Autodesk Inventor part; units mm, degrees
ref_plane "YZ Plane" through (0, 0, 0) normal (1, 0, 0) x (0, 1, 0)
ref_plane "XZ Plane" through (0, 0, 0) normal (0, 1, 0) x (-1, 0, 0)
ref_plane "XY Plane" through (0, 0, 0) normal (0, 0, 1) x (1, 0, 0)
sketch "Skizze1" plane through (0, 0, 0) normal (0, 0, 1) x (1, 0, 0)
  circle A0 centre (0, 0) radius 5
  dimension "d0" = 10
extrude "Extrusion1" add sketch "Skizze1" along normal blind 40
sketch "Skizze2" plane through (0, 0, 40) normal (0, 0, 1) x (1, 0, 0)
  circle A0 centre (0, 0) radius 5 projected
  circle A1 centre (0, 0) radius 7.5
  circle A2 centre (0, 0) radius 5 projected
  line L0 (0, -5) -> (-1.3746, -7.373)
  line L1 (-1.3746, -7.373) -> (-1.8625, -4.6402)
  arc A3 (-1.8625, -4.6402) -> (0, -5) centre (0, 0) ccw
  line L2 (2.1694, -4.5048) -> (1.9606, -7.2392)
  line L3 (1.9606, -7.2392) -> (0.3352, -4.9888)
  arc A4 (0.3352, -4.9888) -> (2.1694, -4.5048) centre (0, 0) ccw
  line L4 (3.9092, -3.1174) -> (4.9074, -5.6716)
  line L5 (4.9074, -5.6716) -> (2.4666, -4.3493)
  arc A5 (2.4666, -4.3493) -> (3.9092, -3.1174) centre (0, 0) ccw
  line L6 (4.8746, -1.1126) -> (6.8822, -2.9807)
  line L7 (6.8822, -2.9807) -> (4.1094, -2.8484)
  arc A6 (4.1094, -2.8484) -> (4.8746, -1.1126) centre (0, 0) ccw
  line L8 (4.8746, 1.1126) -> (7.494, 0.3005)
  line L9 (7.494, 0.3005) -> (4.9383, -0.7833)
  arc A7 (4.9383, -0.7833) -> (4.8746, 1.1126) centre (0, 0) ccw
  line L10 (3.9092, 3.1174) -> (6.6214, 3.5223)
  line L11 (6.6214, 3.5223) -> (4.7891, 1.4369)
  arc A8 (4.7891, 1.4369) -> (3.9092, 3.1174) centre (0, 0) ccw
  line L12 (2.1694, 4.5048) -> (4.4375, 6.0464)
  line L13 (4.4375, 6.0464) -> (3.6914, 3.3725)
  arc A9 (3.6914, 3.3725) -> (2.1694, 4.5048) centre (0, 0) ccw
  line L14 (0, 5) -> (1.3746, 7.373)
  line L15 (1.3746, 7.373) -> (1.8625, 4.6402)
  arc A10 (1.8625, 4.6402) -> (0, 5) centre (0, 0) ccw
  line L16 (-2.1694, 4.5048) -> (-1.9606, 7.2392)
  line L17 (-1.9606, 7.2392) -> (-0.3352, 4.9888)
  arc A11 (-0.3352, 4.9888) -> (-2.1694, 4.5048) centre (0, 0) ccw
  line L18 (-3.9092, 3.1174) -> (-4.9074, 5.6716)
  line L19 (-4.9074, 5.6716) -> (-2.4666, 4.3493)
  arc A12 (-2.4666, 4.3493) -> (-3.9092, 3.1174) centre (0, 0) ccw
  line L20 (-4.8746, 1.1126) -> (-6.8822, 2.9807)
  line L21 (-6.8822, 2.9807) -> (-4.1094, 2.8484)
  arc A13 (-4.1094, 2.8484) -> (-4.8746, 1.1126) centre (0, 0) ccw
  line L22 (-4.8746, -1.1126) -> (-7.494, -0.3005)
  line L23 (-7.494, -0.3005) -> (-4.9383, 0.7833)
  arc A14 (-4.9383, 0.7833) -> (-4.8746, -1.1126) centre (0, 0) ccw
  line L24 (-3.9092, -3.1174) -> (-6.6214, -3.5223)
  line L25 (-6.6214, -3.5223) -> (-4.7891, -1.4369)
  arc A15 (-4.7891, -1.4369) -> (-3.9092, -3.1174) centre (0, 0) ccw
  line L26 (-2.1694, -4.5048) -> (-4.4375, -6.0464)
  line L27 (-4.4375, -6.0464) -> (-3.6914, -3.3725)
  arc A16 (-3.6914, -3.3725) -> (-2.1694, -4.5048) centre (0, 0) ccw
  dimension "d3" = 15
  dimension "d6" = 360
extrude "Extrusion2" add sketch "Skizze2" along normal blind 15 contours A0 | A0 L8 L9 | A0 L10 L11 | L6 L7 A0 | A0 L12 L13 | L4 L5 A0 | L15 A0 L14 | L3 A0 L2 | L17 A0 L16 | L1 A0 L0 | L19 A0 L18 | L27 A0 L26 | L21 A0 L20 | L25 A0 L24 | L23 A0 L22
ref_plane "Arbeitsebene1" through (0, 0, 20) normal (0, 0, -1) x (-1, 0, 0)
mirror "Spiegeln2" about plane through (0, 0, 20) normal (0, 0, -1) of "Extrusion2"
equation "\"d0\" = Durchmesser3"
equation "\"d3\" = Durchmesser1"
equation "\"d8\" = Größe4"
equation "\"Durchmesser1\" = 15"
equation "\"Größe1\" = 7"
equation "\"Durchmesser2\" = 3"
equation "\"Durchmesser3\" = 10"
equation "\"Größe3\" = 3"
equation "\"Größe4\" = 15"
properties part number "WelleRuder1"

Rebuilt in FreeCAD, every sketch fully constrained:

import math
import FreeCAD as App
import Part
import Sketcher
from FreeCAD import Vector
Q = App.Units.Quantity

doc = App.newDocument("Part")
body = doc.addObject("PartDesign::Body", "Body")

sketch1 = body.newObject("Sketcher::SketchObject", "Sketch")
sketch1.AttachmentSupport = (doc.getObject("XY_Plane"), [""])
sketch1.MapMode = "FlatFace"
sketch1.addGeometry(Part.Circle(Vector(0, 0, 0), Vector(0, 0, 1), 5), False)
sketch1.addConstraint([
    Sketcher.Constraint("Coincident", 0, 3, -1, 1),
    Sketcher.Constraint("Diameter", 0, Q("10 mm")),
])
pad1 = body.newObject("PartDesign::Pad", "Pad")
pad1.Profile = sketch1
pad1.Length = 40

sketch2 = body.newObject("Sketcher::SketchObject", "Sketch001")
sketch2.AttachmentSupport = (doc.getObject("XY_Plane"), [""])
sketch2.MapMode = "FlatFace"
sketch2.AttachmentOffset = App.Placement(Vector(0, 0, 40), App.Rotation())
sketch2.addGeometry([
    Part.ArcOfCircle(Part.Circle(Vector(0, 0, 0), Vector(0, 0, 1), 5), math.radians(-12.86), math.radians(-9.01)),
    Part.LineSegment(Vector(4.94, -0.78, 0), Vector(7.49, 0.3, 0)),
    Part.LineSegment(Vector(7.49, 0.3, 0), Vector(4.87, 1.11, 0)),
    Part.ArcOfCircle(Part.Circle(Vector(0, 0, 0), Vector(0, 0, 1), 5), math.radians(12.86), math.radians(16.7)),
    Part.LineSegment(Vector(4.79, 1.44, 0), Vector(6.62, 3.52, 0)),
    Part.LineSegment(Vector(6.62, 3.52, 0), Vector(3.91, 3.12, 0)),
    Part.ArcOfCircle(Part.Circle(Vector(0, 0, 0), Vector(0, 0, 1), 5), math.radians(38.57), math.radians(42.42)),
    Part.LineSegment(Vector(3.69, 3.37, 0), Vector(4.44, 6.05, 0)),
    Part.LineSegment(Vector(4.44, 6.05, 0), Vector(2.17, 4.5, 0)),
    Part.ArcOfCircle(Part.Circle(Vector(0, 0, 0), Vector(0, 0, 1), 5), math.radians(64.29), math.radians(68.13)),
    Part.LineSegment(Vector(1.86, 4.64, 0), Vector(1.37, 7.37, 0)),
    Part.LineSegment(Vector(1.37, 7.37, 0), Vector(0, 5, 0)),
    Part.ArcOfCircle(Part.Circle(Vector(0, 0, 0), Vector(0, 0, 1), 5), math.radians(90), math.radians(93.84)),
    Part.LineSegment(Vector(-0.34, 4.99, 0), Vector(-1.96, 7.24, 0)),
    Part.LineSegment(Vector(-1.96, 7.24, 0), Vector(-2.17, 4.5, 0)),
    Part.ArcOfCircle(Part.Circle(Vector(0, 0, 0), Vector(0, 0, 1), 5), math.radians(115.71), math.radians(119.56)),
    Part.LineSegment(Vector(-2.47, 4.35, 0), Vector(-4.91, 5.67, 0)),
    Part.LineSegment(Vector(-4.91, 5.67, 0), Vector(-3.91, 3.12, 0)),
    Part.ArcOfCircle(Part.Circle(Vector(0, 0, 0), Vector(0, 0, 1), 5), math.radians(141.43), math.radians(145.27)),
    Part.LineSegment(Vector(-4.11, 2.85, 0), Vector(-6.88, 2.98, 0)),
    Part.LineSegment(Vector(-6.88, 2.98, 0), Vector(-4.87, 1.11, 0)),
    Part.ArcOfCircle(Part.Circle(Vector(0, 0, 0), Vector(0, 0, 1), 5), math.radians(167.14), math.radians(170.99)),
    Part.LineSegment(Vector(-4.94, 0.78, 0), Vector(-7.49, -0.3, 0)),
    Part.LineSegment(Vector(-7.49, -0.3, 0), Vector(-4.87, -1.11, 0)),
    Part.ArcOfCircle(Part.Circle(Vector(0, 0, 0), Vector(0, 0, 1), 5), math.radians(-167.14), math.radians(-163.3)),
    Part.LineSegment(Vector(-4.79, -1.44, 0), Vector(-6.62, -3.52, 0)),
    Part.LineSegment(Vector(-6.62, -3.52, 0), Vector(-3.91, -3.12, 0)),
    Part.ArcOfCircle(Part.Circle(Vector(0, 0, 0), Vector(0, 0, 1), 5), math.radians(-141.43), math.radians(-137.58)),
    Part.LineSegment(Vector(-3.69, -3.37, 0), Vector(-4.44, -6.05, 0)),
    Part.LineSegment(Vector(-4.44, -6.05, 0), Vector(-2.17, -4.5, 0)),
    Part.ArcOfCircle(Part.Circle(Vector(0, 0, 0), Vector(0, 0, 1), 5), math.radians(-115.71), math.radians(-111.87)),
    Part.LineSegment(Vector(-1.86, -4.64, 0), Vector(-1.37, -7.37, 0)),
    Part.LineSegment(Vector(-1.37, -7.37, 0), Vector(0, -5, 0)),
    Part.ArcOfCircle(Part.Circle(Vector(0, 0, 0), Vector(0, 0, 1), 5), math.radians(-90), math.radians(-86.16)),
    Part.LineSegment(Vector(0.34, -4.99, 0), Vector(1.96, -7.24, 0)),
    Part.LineSegment(Vector(1.96, -7.24, 0), Vector(2.17, -4.5, 0)),
    Part.ArcOfCircle(Part.Circle(Vector(0, 0, 0), Vector(0, 0, 1), 5), math.radians(-64.29), math.radians(-60.44)),
    Part.LineSegment(Vector(2.47, -4.35, 0), Vector(4.91, -5.67, 0)),
    Part.LineSegment(Vector(4.91, -5.67, 0), Vector(3.91, -3.12, 0)),
    Part.ArcOfCircle(Part.Circle(Vector(0, 0, 0), Vector(0, 0, 1), 5), math.radians(-38.57), math.radians(-34.73)),
    Part.LineSegment(Vector(4.11, -2.85, 0), Vector(6.88, -2.98, 0)),
    Part.LineSegment(Vector(6.88, -2.98, 0), Vector(4.87, -1.11, 0)),
], False)
sketch2.addConstraint([
    Sketcher.Constraint("Coincident", 0, 2, 1, 1),
    Sketcher.Constraint("Coincident", 1, 2, 2, 1),
    Sketcher.Constraint("Coincident", 2, 2, 3, 1),
    Sketcher.Constraint("Coincident", 3, 2, 4, 1),
    Sketcher.Constraint("Coincident", 4, 2, 5, 1),
    Sketcher.Constraint("Coincident", 5, 2, 6, 1),
    Sketcher.Constraint("Coincident", 6, 2, 7, 1),
    Sketcher.Constraint("Coincident", 7, 2, 8, 1),
    Sketcher.Constraint("Coincident", 8, 2, 9, 1),
    Sketcher.Constraint("Coincident", 9, 2, 10, 1),
    Sketcher.Constraint("Coincident", 10, 2, 11, 1),
    Sketcher.Constraint("Coincident", 11, 2, 12, 1),
    Sketcher.Constraint("Coincident", 12, 2, 13, 1),
    Sketcher.Constraint("Coincident", 13, 2, 14, 1),
    Sketcher.Constraint("Coincident", 14, 2, 15, 1),
    Sketcher.Constraint("Coincident", 15, 2, 16, 1),
    Sketcher.Constraint("Coincident", 16, 2, 17, 1),
    Sketcher.Constraint("Coincident", 17, 2, 18, 1),
    Sketcher.Constraint("Coincident", 18, 2, 19, 1),
    Sketcher.Constraint("Coincident", 19, 2, 20, 1),
    Sketcher.Constraint("Coincident", 20, 2, 21, 1),
    Sketcher.Constraint("Coincident", 21, 2, 22, 1),
    Sketcher.Constraint("Coincident", 22, 2, 23, 1),
    Sketcher.Constraint("Coincident", 23, 2, 24, 1),
    Sketcher.Constraint("Coincident", 24, 2, 25, 1),
    Sketcher.Constraint("Coincident", 25, 2, 26, 1),
    Sketcher.Constraint("Coincident", 26, 2, 27, 1),
    Sketcher.Constraint("Coincident", 27, 2, 28, 1),
    Sketcher.Constraint("Coincident", 28, 2, 29, 1),
    Sketcher.Constraint("Coincident", 29, 2, 30, 1),
    Sketcher.Constraint("Coincident", 30, 2, 31, 1),
    Sketcher.Constraint("Coincident", 31, 2, 32, 1),
    Sketcher.Constraint("Coincident", 32, 2, 33, 1),
    Sketcher.Constraint("Coincident", 33, 2, 34, 1),
    Sketcher.Constraint("Coincident", 34, 2, 35, 1),
    Sketcher.Constraint("Coincident", 35, 2, 36, 1),
    Sketcher.Constraint("Coincident", 36, 2, 37, 1),
    Sketcher.Constraint("Coincident", 37, 2, 38, 1),
    Sketcher.Constraint("Coincident", 38, 2, 39, 1),
    Sketcher.Constraint("Coincident", 39, 2, 40, 1),
    Sketcher.Constraint("Coincident", 40, 2, 41, 1),
    Sketcher.Constraint("Coincident", 41, 2, 0, 1),
    Sketcher.Constraint("Coincident", 0, 3, -1, 1),
    Sketcher.Constraint("Coincident", 3, 3, -1, 1),
    Sketcher.Constraint("Coincident", 6, 3, -1, 1),
    Sketcher.Constraint("Coincident", 9, 3, -1, 1),
    Sketcher.Constraint("Coincident", 12, 3, -1, 1),
    Sketcher.Constraint("Coincident", 15, 3, -1, 1),
    Sketcher.Constraint("Coincident", 18, 3, -1, 1),
    Sketcher.Constraint("Coincident", 21, 3, -1, 1),
    Sketcher.Constraint("Coincident", 24, 3, -1, 1),
    Sketcher.Constraint("Coincident", 27, 3, -1, 1),
    Sketcher.Constraint("Coincident", 30, 3, -1, 1),
    Sketcher.Constraint("Coincident", 33, 3, -1, 1),
    Sketcher.Constraint("Coincident", 36, 3, -1, 1),
    Sketcher.Constraint("Coincident", 39, 3, -1, 1),
    Sketcher.Constraint("Equal", 0, 3),
    Sketcher.Constraint("Equal", 3, 6),
    Sketcher.Constraint("Equal", 6, 9),
    Sketcher.Constraint("Equal", 9, 12),
    Sketcher.Constraint("Equal", 12, 15),
    Sketcher.Constraint("Equal", 15, 18),
    Sketcher.Constraint("Equal", 18, 21),
    Sketcher.Constraint("Equal", 21, 24),
    Sketcher.Constraint("Equal", 24, 27),
    Sketcher.Constraint("Equal", 27, 30),
    Sketcher.Constraint("Equal", 30, 33),
    Sketcher.Constraint("Equal", 33, 36),
    Sketcher.Constraint("Equal", 36, 39),
    Sketcher.Constraint("Symmetric", 1, 2, 22, 2, -1, 1),
    Sketcher.Constraint("Symmetric", 4, 2, 25, 2, -1, 1),
    Sketcher.Constraint("Symmetric", 7, 2, 28, 2, -1, 1),
    Sketcher.Constraint("Symmetric", 10, 2, 31, 2, -1, 1),
    Sketcher.Constraint("Symmetric", 13, 2, 34, 2, -1, 1),
    Sketcher.Constraint("Symmetric", 16, 2, 37, 2, -1, 1),
    Sketcher.Constraint("Symmetric", 19, 2, 40, 2, -1, 1),
    Sketcher.Constraint("PointOnObject", 11, 2, -2),
    Sketcher.Constraint("PointOnObject", 32, 2, -2),
    Sketcher.Constraint("Parallel", 1, 22),
    Sketcher.Constraint("Parallel", 2, 23),
    Sketcher.Constraint("Parallel", 4, 25),
    Sketcher.Constraint("Parallel", 5, 26),
    Sketcher.Constraint("Parallel", 7, 28),
    Sketcher.Constraint("Parallel", 8, 29),
    Sketcher.Constraint("Parallel", 10, 31),
    Sketcher.Constraint("Parallel", 13, 34),
    Sketcher.Constraint("Parallel", 14, 35),
    Sketcher.Constraint("Parallel", 16, 37),
    Sketcher.Constraint("Parallel", 17, 38),
    Sketcher.Constraint("Parallel", 19, 40),
    Sketcher.Constraint("Parallel", 20, 41),
    Sketcher.Constraint("Horizontal", 8, 2, 14, 2),
    Sketcher.Constraint("Horizontal", 5, 2, 17, 2),
    Sketcher.Constraint("Horizontal", 2, 2, 20, 2),
    Sketcher.Constraint("Equal", 1, 4),
    Sketcher.Constraint("Equal", 2, 5),
    Sketcher.Constraint("Equal", 4, 7),
    Sketcher.Constraint("Equal", 5, 8),
    Sketcher.Constraint("Equal", 7, 10),
    Sketcher.Constraint("Equal", 8, 11),
    Sketcher.Constraint("Equal", 10, 13),
    Sketcher.Constraint("Equal", 11, 14),
    Sketcher.Constraint("Equal", 13, 16),
    Sketcher.Constraint("Equal", 14, 17),
    Sketcher.Constraint("Equal", 16, 19),
    Sketcher.Constraint("Equal", 17, 20),
    Sketcher.Constraint("Radius", 0, Q("5 mm")),
    Sketcher.Constraint("Angle", 1, Q("22.9804 deg")),
    Sketcher.Constraint("Angle", 5, Q("-171.509 deg")),
    Sketcher.Constraint("Angle", 7, Q("74.4093 deg")),
    Sketcher.Constraint("Angle", 13, Q("125.8395 deg")),
    Sketcher.Constraint("DistanceX", 5, 2, 3, 2, Q("0.88 mm")),
    Sketcher.Constraint("DistanceY", 2, 2, 6, 2, Q("2.26 mm")),
    Sketcher.Constraint("DistanceX", 6, 2, 4, 2, Q("2.93 mm")),
    Sketcher.Constraint("DistanceX", 13, 2, 8, 2, Q("4.13 mm")),
    Sketcher.Constraint("DistanceY", 15, 2, 13, 2, Q("2.89 mm")),
    Sketcher.Constraint("DistanceX", 18, 2, 14, 2, Q("1.94 mm")),
    Sketcher.Constraint("DistanceY", 23, 2, 17, 2, Q("4.23 mm")),
    Sketcher.Constraint("DistanceY", -1, 1, 10, 2, Q("7.373 mm")),
])
pad2 = body.newObject("PartDesign::Pad", "Pad001")
pad2.Profile = sketch2
pad2.Length = 15
doc.recompute()

datumplane = body.newObject("PartDesign::Plane", "DatumPlane")
datumplane.AttachmentSupport = (doc.getObject("XY_Plane"), [""])
datumplane.MapMode = "FlatFace"
datumplane.AttachmentOffset = App.Placement(Vector(0, 0, 20), App.Rotation())
mirrored = body.newObject("PartDesign::Mirrored", "Mirrored")
mirrored.Originals = [pad2]
mirrored.MirrorPlane = (datumplane, [""])
body.Tip = mirrored

doc.recompute()
